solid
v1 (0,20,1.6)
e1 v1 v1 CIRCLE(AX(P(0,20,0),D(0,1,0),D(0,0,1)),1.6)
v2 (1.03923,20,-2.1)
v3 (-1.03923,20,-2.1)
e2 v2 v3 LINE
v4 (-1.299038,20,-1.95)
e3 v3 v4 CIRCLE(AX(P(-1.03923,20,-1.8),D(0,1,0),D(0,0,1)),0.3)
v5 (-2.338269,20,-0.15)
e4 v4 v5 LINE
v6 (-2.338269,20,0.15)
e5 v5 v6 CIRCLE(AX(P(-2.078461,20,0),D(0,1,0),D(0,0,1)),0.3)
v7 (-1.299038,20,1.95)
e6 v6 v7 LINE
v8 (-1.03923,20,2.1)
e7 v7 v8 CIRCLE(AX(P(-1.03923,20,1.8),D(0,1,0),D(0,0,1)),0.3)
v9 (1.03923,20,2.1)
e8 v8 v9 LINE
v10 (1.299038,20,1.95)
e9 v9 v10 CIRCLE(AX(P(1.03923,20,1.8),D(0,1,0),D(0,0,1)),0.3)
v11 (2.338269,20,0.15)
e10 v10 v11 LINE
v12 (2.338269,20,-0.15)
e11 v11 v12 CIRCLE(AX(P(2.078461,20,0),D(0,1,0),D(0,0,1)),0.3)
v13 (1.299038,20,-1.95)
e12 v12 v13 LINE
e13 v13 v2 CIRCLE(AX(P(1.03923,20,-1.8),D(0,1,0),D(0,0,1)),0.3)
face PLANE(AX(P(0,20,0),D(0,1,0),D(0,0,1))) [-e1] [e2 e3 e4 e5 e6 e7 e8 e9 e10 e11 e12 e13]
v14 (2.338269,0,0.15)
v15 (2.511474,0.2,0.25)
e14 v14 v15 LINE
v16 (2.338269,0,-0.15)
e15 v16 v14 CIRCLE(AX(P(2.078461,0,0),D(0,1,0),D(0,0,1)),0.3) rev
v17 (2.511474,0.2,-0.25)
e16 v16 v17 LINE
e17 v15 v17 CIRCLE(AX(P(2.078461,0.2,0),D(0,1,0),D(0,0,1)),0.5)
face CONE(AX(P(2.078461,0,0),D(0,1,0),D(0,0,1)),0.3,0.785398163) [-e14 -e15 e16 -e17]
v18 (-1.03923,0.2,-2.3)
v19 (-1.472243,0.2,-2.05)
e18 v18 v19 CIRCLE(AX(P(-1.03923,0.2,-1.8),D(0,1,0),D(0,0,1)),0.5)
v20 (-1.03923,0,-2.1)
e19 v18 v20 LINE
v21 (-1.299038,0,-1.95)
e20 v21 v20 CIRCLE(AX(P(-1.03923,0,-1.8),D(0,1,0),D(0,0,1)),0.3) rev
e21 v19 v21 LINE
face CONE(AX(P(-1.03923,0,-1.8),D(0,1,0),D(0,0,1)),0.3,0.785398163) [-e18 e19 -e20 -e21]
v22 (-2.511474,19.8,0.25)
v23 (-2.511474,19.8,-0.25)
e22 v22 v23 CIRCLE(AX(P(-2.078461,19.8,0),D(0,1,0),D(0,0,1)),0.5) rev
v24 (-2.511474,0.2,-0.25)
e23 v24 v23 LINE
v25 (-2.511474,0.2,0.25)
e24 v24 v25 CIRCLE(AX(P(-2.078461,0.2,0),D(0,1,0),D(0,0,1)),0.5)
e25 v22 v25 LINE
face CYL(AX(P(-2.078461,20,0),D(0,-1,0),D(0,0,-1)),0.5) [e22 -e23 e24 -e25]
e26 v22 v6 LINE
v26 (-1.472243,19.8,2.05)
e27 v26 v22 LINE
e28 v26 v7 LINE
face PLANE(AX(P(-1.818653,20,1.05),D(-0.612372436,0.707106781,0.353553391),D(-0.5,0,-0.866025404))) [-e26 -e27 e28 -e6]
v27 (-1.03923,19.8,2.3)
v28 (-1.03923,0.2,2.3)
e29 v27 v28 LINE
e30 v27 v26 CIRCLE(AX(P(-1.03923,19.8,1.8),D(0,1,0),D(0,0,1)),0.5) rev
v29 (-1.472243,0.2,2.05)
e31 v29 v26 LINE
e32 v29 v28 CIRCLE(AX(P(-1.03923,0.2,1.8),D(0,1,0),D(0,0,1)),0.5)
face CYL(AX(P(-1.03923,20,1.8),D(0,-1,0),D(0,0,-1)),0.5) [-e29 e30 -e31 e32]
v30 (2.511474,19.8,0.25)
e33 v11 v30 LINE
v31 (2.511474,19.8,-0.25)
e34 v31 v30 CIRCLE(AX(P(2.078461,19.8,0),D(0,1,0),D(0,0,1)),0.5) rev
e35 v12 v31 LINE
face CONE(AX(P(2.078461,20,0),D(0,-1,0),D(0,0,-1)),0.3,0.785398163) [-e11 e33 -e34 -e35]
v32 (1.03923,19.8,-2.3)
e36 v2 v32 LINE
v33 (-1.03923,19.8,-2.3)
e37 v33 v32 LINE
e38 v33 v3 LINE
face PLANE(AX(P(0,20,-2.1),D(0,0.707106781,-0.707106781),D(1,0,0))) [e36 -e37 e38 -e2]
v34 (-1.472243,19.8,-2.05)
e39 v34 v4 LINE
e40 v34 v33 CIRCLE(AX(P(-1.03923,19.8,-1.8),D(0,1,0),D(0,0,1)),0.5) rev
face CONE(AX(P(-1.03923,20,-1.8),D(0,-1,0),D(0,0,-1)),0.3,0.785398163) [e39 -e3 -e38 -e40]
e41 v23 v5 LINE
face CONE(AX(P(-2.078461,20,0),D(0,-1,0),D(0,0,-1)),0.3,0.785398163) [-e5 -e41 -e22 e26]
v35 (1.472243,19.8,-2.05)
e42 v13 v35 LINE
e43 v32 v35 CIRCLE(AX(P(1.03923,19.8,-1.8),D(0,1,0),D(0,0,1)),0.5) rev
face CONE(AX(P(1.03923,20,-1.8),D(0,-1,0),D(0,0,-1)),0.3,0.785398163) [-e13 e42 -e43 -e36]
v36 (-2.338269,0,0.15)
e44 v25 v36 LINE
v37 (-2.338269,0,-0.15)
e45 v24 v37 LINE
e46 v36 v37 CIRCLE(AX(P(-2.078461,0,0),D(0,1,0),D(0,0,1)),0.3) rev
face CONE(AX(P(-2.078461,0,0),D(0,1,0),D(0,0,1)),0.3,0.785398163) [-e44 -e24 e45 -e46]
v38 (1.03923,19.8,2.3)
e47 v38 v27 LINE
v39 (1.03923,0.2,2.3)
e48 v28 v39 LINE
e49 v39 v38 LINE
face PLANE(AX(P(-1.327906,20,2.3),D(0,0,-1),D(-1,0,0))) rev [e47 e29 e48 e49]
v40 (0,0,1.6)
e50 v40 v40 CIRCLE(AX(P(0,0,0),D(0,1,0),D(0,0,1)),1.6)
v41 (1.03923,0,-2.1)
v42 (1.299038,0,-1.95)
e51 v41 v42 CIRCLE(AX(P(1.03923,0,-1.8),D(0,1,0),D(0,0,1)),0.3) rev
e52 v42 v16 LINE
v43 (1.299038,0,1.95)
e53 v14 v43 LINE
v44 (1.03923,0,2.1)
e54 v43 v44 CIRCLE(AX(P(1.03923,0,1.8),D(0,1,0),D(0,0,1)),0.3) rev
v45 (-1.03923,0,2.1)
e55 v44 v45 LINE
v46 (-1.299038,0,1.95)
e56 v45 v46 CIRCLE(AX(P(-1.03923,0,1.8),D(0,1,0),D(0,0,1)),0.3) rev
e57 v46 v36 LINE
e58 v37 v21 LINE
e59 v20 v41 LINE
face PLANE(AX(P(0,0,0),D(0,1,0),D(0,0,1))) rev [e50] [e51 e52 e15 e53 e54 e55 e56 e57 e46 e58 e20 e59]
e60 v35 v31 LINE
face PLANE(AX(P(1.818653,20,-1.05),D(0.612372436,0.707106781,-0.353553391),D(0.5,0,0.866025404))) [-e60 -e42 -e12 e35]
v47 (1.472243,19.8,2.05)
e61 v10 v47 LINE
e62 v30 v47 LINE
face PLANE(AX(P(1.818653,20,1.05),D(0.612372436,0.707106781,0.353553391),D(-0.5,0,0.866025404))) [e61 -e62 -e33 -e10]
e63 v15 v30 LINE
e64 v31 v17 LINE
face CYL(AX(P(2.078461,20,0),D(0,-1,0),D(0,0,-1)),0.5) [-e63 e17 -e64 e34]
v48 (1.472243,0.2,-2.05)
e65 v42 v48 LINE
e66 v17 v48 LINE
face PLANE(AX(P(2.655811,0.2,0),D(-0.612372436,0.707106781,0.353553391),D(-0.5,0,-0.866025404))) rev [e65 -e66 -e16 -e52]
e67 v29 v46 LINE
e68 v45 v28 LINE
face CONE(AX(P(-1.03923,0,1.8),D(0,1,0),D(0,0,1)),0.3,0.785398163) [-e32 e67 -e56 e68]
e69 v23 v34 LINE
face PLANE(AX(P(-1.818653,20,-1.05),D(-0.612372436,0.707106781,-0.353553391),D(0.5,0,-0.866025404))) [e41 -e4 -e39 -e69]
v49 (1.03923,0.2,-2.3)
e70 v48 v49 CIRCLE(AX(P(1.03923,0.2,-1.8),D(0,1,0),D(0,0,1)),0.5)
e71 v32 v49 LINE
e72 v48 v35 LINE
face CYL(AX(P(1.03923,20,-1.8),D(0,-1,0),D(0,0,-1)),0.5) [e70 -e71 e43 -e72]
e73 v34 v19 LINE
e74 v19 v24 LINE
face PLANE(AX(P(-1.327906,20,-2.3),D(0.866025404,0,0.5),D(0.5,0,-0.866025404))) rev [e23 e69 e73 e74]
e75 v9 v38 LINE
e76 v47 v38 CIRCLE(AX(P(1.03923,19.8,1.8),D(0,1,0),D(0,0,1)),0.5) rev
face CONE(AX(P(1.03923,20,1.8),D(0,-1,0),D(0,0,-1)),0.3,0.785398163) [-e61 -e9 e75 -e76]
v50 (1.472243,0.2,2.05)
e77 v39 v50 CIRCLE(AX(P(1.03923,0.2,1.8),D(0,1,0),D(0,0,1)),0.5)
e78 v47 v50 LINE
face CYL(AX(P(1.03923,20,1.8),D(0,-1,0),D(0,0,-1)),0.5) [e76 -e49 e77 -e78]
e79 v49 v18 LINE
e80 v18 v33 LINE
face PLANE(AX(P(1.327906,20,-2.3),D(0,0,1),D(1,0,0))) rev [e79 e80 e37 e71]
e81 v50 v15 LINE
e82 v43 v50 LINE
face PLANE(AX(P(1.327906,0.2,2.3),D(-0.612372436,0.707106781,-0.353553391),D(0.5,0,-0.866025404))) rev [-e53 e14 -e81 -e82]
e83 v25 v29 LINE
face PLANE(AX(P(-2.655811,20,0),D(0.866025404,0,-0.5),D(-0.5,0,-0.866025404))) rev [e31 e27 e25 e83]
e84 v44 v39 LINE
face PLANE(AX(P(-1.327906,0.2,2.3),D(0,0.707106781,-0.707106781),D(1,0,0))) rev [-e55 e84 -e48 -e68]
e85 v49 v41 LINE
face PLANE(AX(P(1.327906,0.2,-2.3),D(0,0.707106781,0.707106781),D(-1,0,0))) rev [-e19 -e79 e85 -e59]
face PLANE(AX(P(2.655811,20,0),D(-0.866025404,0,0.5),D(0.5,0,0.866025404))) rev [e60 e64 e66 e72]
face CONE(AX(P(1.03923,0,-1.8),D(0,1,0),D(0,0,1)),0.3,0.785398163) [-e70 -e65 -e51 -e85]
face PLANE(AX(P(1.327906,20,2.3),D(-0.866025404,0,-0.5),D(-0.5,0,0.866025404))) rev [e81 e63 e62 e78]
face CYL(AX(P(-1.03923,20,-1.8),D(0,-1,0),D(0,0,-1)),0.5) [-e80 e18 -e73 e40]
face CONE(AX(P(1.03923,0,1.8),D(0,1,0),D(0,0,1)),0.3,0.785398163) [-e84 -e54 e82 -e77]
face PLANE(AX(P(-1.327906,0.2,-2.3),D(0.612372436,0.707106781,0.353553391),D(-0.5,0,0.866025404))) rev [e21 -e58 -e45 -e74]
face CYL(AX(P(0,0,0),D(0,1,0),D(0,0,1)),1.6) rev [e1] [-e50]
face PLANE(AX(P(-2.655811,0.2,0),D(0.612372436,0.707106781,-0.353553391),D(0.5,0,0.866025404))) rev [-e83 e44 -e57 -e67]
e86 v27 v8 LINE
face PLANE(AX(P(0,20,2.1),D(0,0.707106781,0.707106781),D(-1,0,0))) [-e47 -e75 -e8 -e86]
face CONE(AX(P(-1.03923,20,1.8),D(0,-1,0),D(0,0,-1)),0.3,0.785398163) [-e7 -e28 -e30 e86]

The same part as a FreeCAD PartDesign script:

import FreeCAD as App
import Part
import Sketcher
Q = App.Units.Quantity


def edges_at(feature, points):
    """Names of the edges that pass closest to the given points."""
    edges = feature.Shape.Edges
    near = lambda p: min(range(len(edges)), key=lambda i: edges[i].distToShape(Part.Vertex(*p))[0])
    return sorted({f"Edge{near(p) + 1}" for p in points})

doc = App.newDocument("Part")
body = doc.addObject("PartDesign::Body", "Body")

sketch1 = body.newObject("Sketcher::SketchObject", "Sketch")
sketch1.AttachmentSupport = (doc.getObject("XZ_Plane"), [""])
sketch1.MapMode = "FlatFace"
sketch1.addGeometry(Part.LineSegment(App.Vector(1.3, 2.3, 0), App.Vector(2.7, 0, 0)), False)
sketch1.addGeometry(Part.LineSegment(App.Vector(2.7, 0, 0), App.Vector(1.3, -2.3, 0)), False)
sketch1.addGeometry(Part.LineSegment(App.Vector(1.3, -2.3, 0), App.Vector(-1.3, -2.3, 0)), False)
sketch1.addGeometry(Part.LineSegment(App.Vector(-1.3, -2.3, 0), App.Vector(-2.7, 0, 0)), False)
sketch1.addGeometry(Part.LineSegment(App.Vector(-2.7, 0, 0), App.Vector(-1.3, 2.3, 0)), False)
sketch1.addGeometry(Part.LineSegment(App.Vector(-1.3, 2.3, 0), App.Vector(1.3, 2.3, 0)), False)
sketch1.addConstraint(Sketcher.Constraint("Coincident", 0, 2, 1, 1))
sketch1.addConstraint(Sketcher.Constraint("Coincident", 1, 2, 2, 1))
sketch1.addConstraint(Sketcher.Constraint("Coincident", 2, 2, 3, 1))
sketch1.addConstraint(Sketcher.Constraint("Coincident", 3, 2, 4, 1))
sketch1.addConstraint(Sketcher.Constraint("Coincident", 4, 2, 5, 1))
sketch1.addConstraint(Sketcher.Constraint("Coincident", 5, 2, 0, 1))
sketch1.addConstraint(Sketcher.Constraint("Horizontal", 2))
sketch1.addConstraint(Sketcher.Constraint("Horizontal", 5))
sketch1.addConstraint(Sketcher.Constraint("Symmetric", 0, 2, 3, 2, -1, 1))
sketch1.addConstraint(Sketcher.Constraint("Symmetric", 1, 2, 4, 2, -1, 1))
sketch1.addConstraint(Sketcher.Constraint("PointOnObject", 0, 2, -1))
sketch1.addConstraint(Sketcher.Constraint("Parallel", 0, 3))
sketch1.addConstraint(Sketcher.Constraint("Vertical", 2, 2, 4, 2))
sketch1.addConstraint(Sketcher.Constraint("Angle", 0, Q("-60 deg")))
sketch1.addConstraint(Sketcher.Constraint("DistanceY", 1, 2, -1, 1, 2.3))
sketch1.addConstraint(Sketcher.Constraint("DistanceX", 2, 2, 2, 1, 2.655811))
pad1 = body.newObject("PartDesign::Pad", "Pad")
pad1.Profile = sketch1
pad1.Length = 20
pad1.Reversed = True

sketch2 = body.newObject("Sketcher::SketchObject", "Sketch001")
sketch2.AttachmentSupport = (doc.getObject("XZ_Plane"), [""])
sketch2.MapMode = "FlatFace"
sketch2.AttachmentOffset = App.Placement(App.Vector(0, 0, -20), App.Rotation())
sketch2.addGeometry(Part.Circle(App.Vector(0, 0, 0), App.Vector(0, 0, 1), 1.6), False)
sketch2.addConstraint(Sketcher.Constraint("Coincident", 0, 3, -1, 1))
sketch2.addConstraint(Sketcher.Constraint("Diameter", 0, 3.2))
pocket1 = body.newObject("PartDesign::Pocket", "Pocket")
pocket1.Profile = sketch2
pocket1.Type = "ThroughAll"
pocket1.Reversed = True
doc.recompute()

fillet = body.newObject("PartDesign::Fillet", "Fillet")
fillet.Base = (pocket1, edges_at(pocket1, [
    (-1.328, 10, 2.3),
    (-2.656, 10, 0),
    (-1.328, 10, -2.3),
    (1.328, 10, -2.3),
    (2.656, 10, 0),
    (1.328, 10, 2.3),
]))
fillet.Radius = 0.5
doc.recompute()

chamfer = body.newObject("PartDesign::Chamfer", "Chamfer")
chamfer.Base = (fillet, edges_at(fillet, [
    (0, 0, 2.3),
    (0, 20, 2.3),
    (-1.992, 0, 1.15),
    (-1.992, 0, -1.15),
    (0, 0, -2.3),
    (1.992, 0, -1.15),
    (1.992, 0, 1.15),
    (1.289, 0, 2.233),
    (2.578, 0, 0),
    (1.289, 0, -2.233),
    (-1.289, 0, -2.233),
    (-2.578, 0, 0),
    (-1.289, 0, 2.233),
    (-1.992, 20, 1.15),
    (1.992, 20, 1.15),
    (1.992, 20, -1.15),
    (0, 20, -2.3),
    (-1.992, 20, -1.15),
    (1.289, 20, 2.233),
    (2.578, 20, 0),
    (1.289, 20, -2.233),
    (-1.289, 20, -2.233),
    (-2.578, 20, 0),
    (-1.289, 20, 2.233),
]))
chamfer.Size = 0.2

doc.recompute()
